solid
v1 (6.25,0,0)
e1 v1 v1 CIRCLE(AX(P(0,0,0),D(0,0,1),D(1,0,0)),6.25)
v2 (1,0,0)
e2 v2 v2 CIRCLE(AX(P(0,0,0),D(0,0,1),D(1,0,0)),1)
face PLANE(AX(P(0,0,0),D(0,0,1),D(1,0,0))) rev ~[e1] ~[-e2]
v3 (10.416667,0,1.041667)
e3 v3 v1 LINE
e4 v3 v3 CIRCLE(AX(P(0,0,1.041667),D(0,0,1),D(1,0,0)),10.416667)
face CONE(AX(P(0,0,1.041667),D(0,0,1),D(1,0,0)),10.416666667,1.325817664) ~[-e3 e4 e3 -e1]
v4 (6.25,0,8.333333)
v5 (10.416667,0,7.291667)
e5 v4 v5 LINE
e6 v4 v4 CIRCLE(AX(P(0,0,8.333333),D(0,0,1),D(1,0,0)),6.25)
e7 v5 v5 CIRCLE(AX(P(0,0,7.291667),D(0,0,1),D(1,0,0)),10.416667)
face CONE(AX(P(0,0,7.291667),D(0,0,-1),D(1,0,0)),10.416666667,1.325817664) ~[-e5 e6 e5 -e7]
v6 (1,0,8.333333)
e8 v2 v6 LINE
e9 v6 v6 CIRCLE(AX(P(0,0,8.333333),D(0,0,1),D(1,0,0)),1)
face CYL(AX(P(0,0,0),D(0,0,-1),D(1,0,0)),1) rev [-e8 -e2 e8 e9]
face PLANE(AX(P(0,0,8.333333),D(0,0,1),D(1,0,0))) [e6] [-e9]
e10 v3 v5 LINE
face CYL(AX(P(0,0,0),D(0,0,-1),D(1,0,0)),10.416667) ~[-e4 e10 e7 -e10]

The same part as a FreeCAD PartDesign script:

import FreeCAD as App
import Part
import Sketcher
from FreeCAD import Vector


def edges_at(feature, points):
    """Names of the edges that pass closest to the given points."""
    edges = feature.Shape.Edges
    near = lambda p: min(range(len(edges)), key=lambda i: edges[i].distToShape(Part.Vertex(*p))[0])
    return sorted({f"Edge{near(p) + 1}" for p in points})

doc = App.newDocument("Part")
body = doc.addObject("PartDesign::Body", "Body")

sketch1 = doc.addObject("Sketcher::SketchObject", "Sketch")
body.addObject(sketch1)
sketch1.AttachmentSupport = (doc.XY_Plane, [""])
sketch1.MapMode = "FlatFace"
sketch1.addGeometry(Part.Circle(Vector(0, 0, 0), Vector(0, 0, 1), 10.416667), False)
sketch1.addGeometry(Part.Circle(Vector(0, 0, 0), Vector(0, 0, 1), 1), False)
sketch1.addConstraint(Sketcher.Constraint("Coincident", 0, 3, -1, 1))
sketch1.addConstraint(Sketcher.Constraint("Coincident", 1, 3, -1, 1))
sketch1.addConstraint(Sketcher.Constraint("Diameter", 1, 2.0))
sketch1.addConstraint(Sketcher.Constraint("Diameter", 0, 20.833333))
pad1 = doc.addObject("PartDesign::Pad", "Pad")
body.addObject(pad1)
pad1.Profile = sketch1
pad1.Length = 8.333333
doc.recompute()

chamfer = doc.addObject("PartDesign::Chamfer", "Chamfer")
body.addObject(chamfer)
chamfer.Base = (pad1, edges_at(pad1, [(-10.417, 0, 8.333)]))
chamfer.ChamferType = "Two distances"
chamfer.Size = 4.166667
chamfer.Size2 = 1.041667
chamfer.FlipDirection = True
doc.recompute()

chamfer2 = doc.addObject("PartDesign::Chamfer", "Chamfer001")
body.addObject(chamfer2)
chamfer2.Base = (chamfer, edges_at(chamfer, [(-10.417, 0, 0)]))
chamfer2.ChamferType = "Two distances"
chamfer2.Size = 1.041667
chamfer2.Size2 = 4.166667

doc.recompute()
